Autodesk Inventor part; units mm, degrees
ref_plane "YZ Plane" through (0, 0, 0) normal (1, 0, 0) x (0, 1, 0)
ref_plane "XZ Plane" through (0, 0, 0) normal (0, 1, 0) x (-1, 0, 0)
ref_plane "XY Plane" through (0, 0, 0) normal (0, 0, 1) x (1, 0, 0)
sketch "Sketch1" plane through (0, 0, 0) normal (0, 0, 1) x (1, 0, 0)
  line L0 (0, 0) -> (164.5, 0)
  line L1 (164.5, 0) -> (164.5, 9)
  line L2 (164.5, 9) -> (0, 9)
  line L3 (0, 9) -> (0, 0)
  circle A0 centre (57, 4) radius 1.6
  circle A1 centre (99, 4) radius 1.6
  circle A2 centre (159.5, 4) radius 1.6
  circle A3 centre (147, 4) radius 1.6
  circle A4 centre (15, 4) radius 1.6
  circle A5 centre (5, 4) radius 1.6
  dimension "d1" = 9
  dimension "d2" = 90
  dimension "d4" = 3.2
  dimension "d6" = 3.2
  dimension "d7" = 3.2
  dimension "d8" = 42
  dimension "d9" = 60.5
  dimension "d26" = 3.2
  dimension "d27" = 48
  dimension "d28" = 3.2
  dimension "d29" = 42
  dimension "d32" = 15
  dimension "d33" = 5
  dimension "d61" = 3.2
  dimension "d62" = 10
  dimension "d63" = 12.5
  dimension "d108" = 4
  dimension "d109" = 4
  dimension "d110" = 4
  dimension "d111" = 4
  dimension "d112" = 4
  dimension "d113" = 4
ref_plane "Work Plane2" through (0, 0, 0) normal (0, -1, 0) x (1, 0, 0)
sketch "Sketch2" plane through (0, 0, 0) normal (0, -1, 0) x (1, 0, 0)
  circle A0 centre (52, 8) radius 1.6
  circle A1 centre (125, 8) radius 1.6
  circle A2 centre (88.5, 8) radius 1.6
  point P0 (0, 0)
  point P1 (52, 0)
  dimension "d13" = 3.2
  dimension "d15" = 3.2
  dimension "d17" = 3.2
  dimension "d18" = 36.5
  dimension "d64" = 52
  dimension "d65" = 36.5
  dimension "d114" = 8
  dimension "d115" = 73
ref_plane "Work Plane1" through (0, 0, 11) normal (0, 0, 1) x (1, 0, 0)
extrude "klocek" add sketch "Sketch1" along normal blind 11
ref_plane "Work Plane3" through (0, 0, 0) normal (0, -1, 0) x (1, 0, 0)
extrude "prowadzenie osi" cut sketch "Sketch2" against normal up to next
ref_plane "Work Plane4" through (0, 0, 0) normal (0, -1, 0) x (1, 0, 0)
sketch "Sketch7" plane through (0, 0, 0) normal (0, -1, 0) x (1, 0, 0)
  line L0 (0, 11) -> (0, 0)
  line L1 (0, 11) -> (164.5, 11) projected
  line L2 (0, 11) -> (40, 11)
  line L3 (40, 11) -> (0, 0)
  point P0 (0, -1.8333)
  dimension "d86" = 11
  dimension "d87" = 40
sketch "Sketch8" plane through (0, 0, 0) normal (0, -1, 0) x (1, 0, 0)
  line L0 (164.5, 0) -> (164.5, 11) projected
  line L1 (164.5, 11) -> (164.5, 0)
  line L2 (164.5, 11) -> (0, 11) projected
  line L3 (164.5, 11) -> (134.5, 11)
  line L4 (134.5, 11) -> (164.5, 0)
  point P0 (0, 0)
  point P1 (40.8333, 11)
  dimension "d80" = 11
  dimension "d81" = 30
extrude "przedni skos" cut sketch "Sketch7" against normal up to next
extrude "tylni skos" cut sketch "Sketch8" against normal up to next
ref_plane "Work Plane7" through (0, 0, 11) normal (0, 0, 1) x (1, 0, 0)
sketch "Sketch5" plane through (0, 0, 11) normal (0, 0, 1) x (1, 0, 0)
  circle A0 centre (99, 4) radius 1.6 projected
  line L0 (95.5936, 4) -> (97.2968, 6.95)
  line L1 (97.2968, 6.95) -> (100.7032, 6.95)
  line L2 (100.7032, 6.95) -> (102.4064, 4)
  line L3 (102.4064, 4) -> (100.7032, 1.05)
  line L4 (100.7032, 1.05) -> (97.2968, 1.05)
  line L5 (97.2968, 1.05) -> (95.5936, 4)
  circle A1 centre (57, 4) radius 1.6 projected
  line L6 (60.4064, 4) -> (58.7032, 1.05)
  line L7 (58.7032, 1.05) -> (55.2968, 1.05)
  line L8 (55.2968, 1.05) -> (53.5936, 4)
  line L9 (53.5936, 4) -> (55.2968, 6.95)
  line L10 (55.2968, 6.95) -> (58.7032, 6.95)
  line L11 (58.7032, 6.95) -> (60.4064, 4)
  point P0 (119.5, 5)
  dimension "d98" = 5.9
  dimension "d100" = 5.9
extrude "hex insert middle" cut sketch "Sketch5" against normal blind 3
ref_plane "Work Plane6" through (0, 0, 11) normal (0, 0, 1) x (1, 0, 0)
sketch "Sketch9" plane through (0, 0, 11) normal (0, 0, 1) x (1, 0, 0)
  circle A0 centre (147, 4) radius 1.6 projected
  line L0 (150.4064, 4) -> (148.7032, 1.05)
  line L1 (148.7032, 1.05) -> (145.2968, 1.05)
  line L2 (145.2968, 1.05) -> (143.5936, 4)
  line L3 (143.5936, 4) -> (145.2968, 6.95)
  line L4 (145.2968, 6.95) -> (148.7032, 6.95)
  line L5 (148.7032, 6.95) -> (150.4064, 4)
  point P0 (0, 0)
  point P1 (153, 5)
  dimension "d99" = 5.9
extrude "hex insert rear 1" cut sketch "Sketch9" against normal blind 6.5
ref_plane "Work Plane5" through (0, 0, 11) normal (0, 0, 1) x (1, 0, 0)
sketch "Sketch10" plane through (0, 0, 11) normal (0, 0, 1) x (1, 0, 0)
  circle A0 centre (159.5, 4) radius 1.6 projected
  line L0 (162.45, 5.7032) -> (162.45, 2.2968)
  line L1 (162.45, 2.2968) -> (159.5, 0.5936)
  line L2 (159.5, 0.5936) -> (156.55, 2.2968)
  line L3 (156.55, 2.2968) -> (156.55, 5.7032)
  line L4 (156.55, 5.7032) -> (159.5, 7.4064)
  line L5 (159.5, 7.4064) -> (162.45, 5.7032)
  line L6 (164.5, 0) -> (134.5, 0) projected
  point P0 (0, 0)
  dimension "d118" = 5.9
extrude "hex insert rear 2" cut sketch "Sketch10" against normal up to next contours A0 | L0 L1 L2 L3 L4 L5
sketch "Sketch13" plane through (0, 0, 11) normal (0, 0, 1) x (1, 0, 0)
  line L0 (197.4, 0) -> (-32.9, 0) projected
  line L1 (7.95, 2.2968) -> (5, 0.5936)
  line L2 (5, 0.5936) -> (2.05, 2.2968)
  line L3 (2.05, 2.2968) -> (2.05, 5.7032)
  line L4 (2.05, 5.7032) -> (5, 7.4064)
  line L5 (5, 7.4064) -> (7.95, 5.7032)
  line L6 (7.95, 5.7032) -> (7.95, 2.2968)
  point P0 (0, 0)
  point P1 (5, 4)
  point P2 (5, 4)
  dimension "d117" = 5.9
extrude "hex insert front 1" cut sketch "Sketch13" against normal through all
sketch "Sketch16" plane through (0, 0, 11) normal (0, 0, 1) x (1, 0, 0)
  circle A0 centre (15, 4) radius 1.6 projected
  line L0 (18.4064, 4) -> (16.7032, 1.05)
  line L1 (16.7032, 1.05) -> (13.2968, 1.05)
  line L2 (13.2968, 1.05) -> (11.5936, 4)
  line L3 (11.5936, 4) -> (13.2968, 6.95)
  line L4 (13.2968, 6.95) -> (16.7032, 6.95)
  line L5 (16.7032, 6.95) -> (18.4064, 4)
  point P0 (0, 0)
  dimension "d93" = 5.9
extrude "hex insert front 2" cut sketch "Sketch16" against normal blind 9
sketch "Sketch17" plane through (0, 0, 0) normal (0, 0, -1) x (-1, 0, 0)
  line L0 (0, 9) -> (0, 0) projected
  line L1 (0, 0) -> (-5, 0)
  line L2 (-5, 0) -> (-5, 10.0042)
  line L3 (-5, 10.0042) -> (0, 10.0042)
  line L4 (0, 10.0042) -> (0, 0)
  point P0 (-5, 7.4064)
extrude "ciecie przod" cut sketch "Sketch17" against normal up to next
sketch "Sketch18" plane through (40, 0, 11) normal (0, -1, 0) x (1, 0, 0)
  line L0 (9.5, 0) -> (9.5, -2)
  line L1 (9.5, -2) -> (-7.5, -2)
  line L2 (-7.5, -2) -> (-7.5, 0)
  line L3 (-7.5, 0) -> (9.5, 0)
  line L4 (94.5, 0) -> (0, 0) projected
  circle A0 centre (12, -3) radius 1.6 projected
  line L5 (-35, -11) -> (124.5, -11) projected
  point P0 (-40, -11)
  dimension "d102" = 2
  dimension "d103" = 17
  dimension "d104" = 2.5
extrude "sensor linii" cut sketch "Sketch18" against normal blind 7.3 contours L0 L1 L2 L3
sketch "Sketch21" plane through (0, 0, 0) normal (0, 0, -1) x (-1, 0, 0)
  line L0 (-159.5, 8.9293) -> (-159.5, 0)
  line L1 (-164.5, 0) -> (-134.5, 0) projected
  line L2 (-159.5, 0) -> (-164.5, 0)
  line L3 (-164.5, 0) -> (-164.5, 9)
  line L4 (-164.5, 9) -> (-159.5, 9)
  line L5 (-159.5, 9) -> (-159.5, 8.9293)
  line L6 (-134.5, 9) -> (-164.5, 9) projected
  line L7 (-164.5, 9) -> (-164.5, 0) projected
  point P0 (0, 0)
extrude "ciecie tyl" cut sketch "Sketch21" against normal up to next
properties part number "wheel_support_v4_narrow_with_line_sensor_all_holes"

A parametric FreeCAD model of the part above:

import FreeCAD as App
import Part
import Sketcher

V = App.Vector
Q = App.Units.Quantity

doc = App.newDocument("Part")
body = doc.addObject("PartDesign::Body", "Body")

sketch1 = body.newObject("Sketcher::SketchObject", "Sketch")
sketch1.AttachmentSupport = (doc.getObject("XY_Plane"), [""])
sketch1.MapMode = "FlatFace"
sketch1.addGeometry([
    Part.LineSegment(V(0, 9, 0), V(0, 0, 0)),
    Part.LineSegment(V(0, 0, 0), V(164.5, 0, 0)),
    Part.LineSegment(V(164.5, 0, 0), V(164.5, 9, 0)),
    Part.LineSegment(V(164.5, 9, 0), V(0, 9, 0)),
    Part.Circle(V(5, 4, 0), V(0, 0, 1), 1.6),
    Part.Circle(V(15, 4, 0), V(0, 0, 1), 1.6),
    Part.Circle(V(57, 4, 0), V(0, 0, 1), 1.6),
    Part.Circle(V(99, 4, 0), V(0, 0, 1), 1.6),
    Part.Circle(V(147, 4, 0), V(0, 0, 1), 1.6),
    Part.Circle(V(159.5, 4, 0), V(0, 0, 1), 1.6),
], False)
sketch1.addConstraint([
    Sketcher.Constraint("Coincident", 0, 2, 1, 1),
    Sketcher.Constraint("Coincident", 1, 2, 2, 1),
    Sketcher.Constraint("Coincident", 2, 2, 3, 1),
    Sketcher.Constraint("Coincident", 3, 2, 0, 1),
    Sketcher.Constraint("Vertical", 0),
    Sketcher.Constraint("Horizontal", 1),
    Sketcher.Constraint("Vertical", 2),
    Sketcher.Constraint("Horizontal", 3),
    Sketcher.Constraint("Coincident", 0, 2, -1, 1),
    Sketcher.Constraint("Equal", 4, 5),
    Sketcher.Constraint("Equal", 5, 6),
    Sketcher.Constraint("Equal", 6, 7),
    Sketcher.Constraint("Equal", 7, 8),
    Sketcher.Constraint("Equal", 8, 9),
    Sketcher.Constraint("Horizontal", 4, 3, 5, 3),
    Sketcher.Constraint("Horizontal", 5, 3, 6, 3),
    Sketcher.Constraint("Horizontal", 6, 3, 7, 3),
    Sketcher.Constraint("Horizontal", 7, 3, 8, 3),
    Sketcher.Constraint("Horizontal", 8, 3, 9, 3),
    Sketcher.Constraint("Diameter", 4, 3.2),
    Sketcher.Constraint("DistanceY", 0, 2, 0, 1, 9.0),
    Sketcher.Constraint("DistanceX", -1, 1, 4, 3, 5.0),
    Sketcher.Constraint("DistanceY", -1, 1, 4, 3, 4.0),
    Sketcher.Constraint("DistanceX", -1, 1, 5, 3, 15.0),
    Sketcher.Constraint("DistanceX", 5, 3, 6, 3, 42.0),
    Sketcher.Constraint("DistanceX", 6, 3, 7, 3, 42.0),
    Sketcher.Constraint("DistanceX", 7, 3, 8, 3, 48.0),
    Sketcher.Constraint("DistanceX", 9, 3, 1, 2, 5.0),
    Sketcher.Constraint("DistanceX", 8, 3, 9, 3, 12.5),
])
pad1 = body.newObject("PartDesign::Pad", "Pad")
pad1.Profile = sketch1
pad1.Length = 11

sketch2 = body.newObject("Sketcher::SketchObject", "Sketch001")
sketch2.AttachmentSupport = (doc.getObject("XZ_Plane"), [""])
sketch2.MapMode = "FlatFace"
sketch2.addGeometry([
    Part.Circle(V(52, 8, 0), V(0, 0, 1), 1.6),
    Part.Circle(V(125, 8, 0), V(0, 0, 1), 1.6),
    Part.Circle(V(88.5, 8, 0), V(0, 0, 1), 1.6),
], False)
sketch2.addConstraint([
    Sketcher.Constraint("Equal", 0, 1),
    Sketcher.Constraint("Equal", 1, 2),
    Sketcher.Constraint("Horizontal", 0, 3, 1, 3),
    Sketcher.Constraint("Horizontal", 1, 3, 2, 3),
    Sketcher.Constraint("Diameter", 0, 3.2),
    Sketcher.Constraint("DistanceX", -1, 1, 0, 3, 52.0),
    Sketcher.Constraint("DistanceY", -1, 1, 0, 3, 8.0),
    Sketcher.Constraint("DistanceX", 0, 3, 1, 3, 73.0),
    Sketcher.Constraint("DistanceX", 0, 3, 2, 3, 36.5),
])
pocket1 = body.newObject("PartDesign::Pocket", "Pocket")
pocket1.Profile = sketch2
pocket1.Type = "UpToFirst"

sketch3 = body.newObject("Sketcher::SketchObject", "Sketch002")
sketch3.AttachmentSupport = (doc.getObject("XZ_Plane"), [""])
sketch3.MapMode = "FlatFace"
sketch3.addGeometry([
    Part.LineSegment(V(40, 11, 0), V(0, 11, 0)),
    Part.LineSegment(V(0, 11, 0), V(0, 0, 0)),
    Part.LineSegment(V(0, 0, 0), V(40, 11, 0)),
], False)
sketch3.addConstraint([
    Sketcher.Constraint("Coincident", 0, 2, 1, 1),
    Sketcher.Constraint("Coincident", 1, 2, 2, 1),
    Sketcher.Constraint("Coincident", 2, 2, 0, 1),
    Sketcher.Constraint("Horizontal", 0),
    Sketcher.Constraint("Vertical", 1),
    Sketcher.Constraint("Coincident", 1, 2, -1, 1),
    Sketcher.Constraint("DistanceX", 0, 2, 0, 1, 40.0),
    Sketcher.Constraint("DistanceY", 1, 2, 1, 1, 11.0),
])
pocket2 = body.newObject("PartDesign::Pocket", "Pocket001")
pocket2.Profile = sketch3
pocket2.Type = "UpToFirst"

sketch4 = body.newObject("Sketcher::SketchObject", "Sketch003")
sketch4.AttachmentSupport = (doc.getObject("XZ_Plane"), [""])
sketch4.MapMode = "FlatFace"
sketch4.addGeometry([
    Part.LineSegment(V(134, 11, 0), V(164, 0, 0)),
    Part.LineSegment(V(164, 0, 0), V(164, 11, 0)),
    Part.LineSegment(V(164, 11, 0), V(134, 11, 0)),
], False)
sketch4.addConstraint([
    Sketcher.Constraint("Coincident", 0, 2, 1, 1),
    Sketcher.Constraint("Coincident", 1, 2, 2, 1),
    Sketcher.Constraint("Coincident", 2, 2, 0, 1),
    Sketcher.Constraint("Vertical", 1),
    Sketcher.Constraint("Horizontal", 2),
    Sketcher.Constraint("PointOnObject", 0, 2, -1),
    Sketcher.Constraint("DistanceX", 2, 2, 2, 1, 30.0),
    Sketcher.Constraint("DistanceY", 1, 1, 1, 2, 11.0),
    Sketcher.Constraint("DistanceX", -1, 1, 0, 2, 164.5),
])
pocket3 = body.newObject("PartDesign::Pocket", "Pocket002")
pocket3.Profile = sketch4
pocket3.Type = "UpToFirst"

sketch5 = body.newObject("Sketcher::SketchObject", "Sketch004")
sketch5.AttachmentSupport = (doc.getObject("XY_Plane"), [""])
sketch5.MapMode = "FlatFace"
sketch5.AttachmentOffset = App.Placement(V(0, 0, 11), App.Rotation())
sketch5.addGeometry([
    Part.LineSegment(V(97.3, 7, 0), V(95.6, 4, 0)),
    Part.LineSegment(V(95.6, 4, 0), V(97.3, 1.1, 0)),
    Part.LineSegment(V(97.3, 1.1, 0), V(100.7, 1.1, 0)),
    Part.LineSegment(V(100.7, 1.1, 0), V(102.4, 4, 0)),
    Part.LineSegment(V(102.4, 4, 0), V(100.7, 7, 0)),
    Part.LineSegment(V(100.7, 7, 0), V(97.3, 7, 0)),
    Part.Circle(V(99, 4, 0), V(0, 0, 1), 1.6),
    Part.LineSegment(V(58.7, 1.1, 0), V(60.4, 4, 0)),
    Part.LineSegment(V(60.4, 4, 0), V(58.7, 7, 0)),
    Part.LineSegment(V(58.7, 7, 0), V(55.3, 7, 0)),
    Part.LineSegment(V(55.3, 7, 0), V(53.6, 4, 0)),
    Part.LineSegment(V(53.6, 4, 0), V(55.3, 1.1, 0)),
    Part.LineSegment(V(55.3, 1.1, 0), V(58.7, 1.1, 0)),
    Part.Circle(V(57, 4, 0), V(0, 0, 1), 1.6),
], False)
sketch5.addConstraint([
    Sketcher.Constraint("Coincident", 0, 2, 1, 1),
    Sketcher.Constraint("Coincident", 1, 2, 2, 1),
    Sketcher.Constraint("Coincident", 2, 2, 3, 1),
    Sketcher.Constraint("Coincident", 3, 2, 4, 1),
    Sketcher.Constraint("Coincident", 4, 2, 5, 1),
    Sketcher.Constraint("Coincident", 5, 2, 0, 1),
    Sketcher.Constraint("Coincident", 7, 2, 8, 1),
    Sketcher.Constraint("Coincident", 8, 2, 9, 1),
    Sketcher.Constraint("Coincident", 9, 2, 10, 1),
    Sketcher.Constraint("Coincident", 10, 2, 11, 1),
    Sketcher.Constraint("Coincident", 11, 2, 12, 1),
    Sketcher.Constraint("Coincident", 12, 2, 7, 1),
    Sketcher.Constraint("Horizontal", 2),
    Sketcher.Constraint("Horizontal", 5),
    Sketcher.Constraint("Horizontal", 9),
    Sketcher.Constraint("Horizontal", 12),
    Sketcher.Constraint("Equal", 6, 13),
    Sketcher.Constraint("Parallel", 0, 3),
    Sketcher.Constraint("Parallel", 1, 4),
    Sketcher.Constraint("Parallel", 3, 7),
    Sketcher.Constraint("Parallel", 4, 8),
    Sketcher.Constraint("Parallel", 7, 10),
    Sketcher.Constraint("Parallel", 8, 11),
    Sketcher.Constraint("Horizontal", 6, 3, 13, 3),
    Sketcher.Constraint("Horizontal", 13, 3, 0, 2),
    Sketcher.Constraint("Horizontal", 0, 2, 3, 2),
    Sketcher.Constraint("Horizontal", 3, 2, 7, 2),
    Sketcher.Constraint("Horizontal", 5, 2, 8, 2),
    Sketcher.Constraint("Horizontal", 7, 2, 10, 2),
    Sketcher.Constraint("Horizontal", 2, 2, 11, 2),
    Sketcher.Constraint("Vertical", 2, 2, 4, 2),
    Sketcher.Constraint("Vertical", 1, 2, 5, 2),
    Sketcher.Constraint("Equal", 5, 9),
    Sketcher.Constraint("Diameter", 6, 3.2),
    Sketcher.Constraint("DistanceY", 2, 2, 4, 2, 5.9),
    Sketcher.Constraint("Angle", 0, Q("-120.0002 deg")),
    Sketcher.Constraint("DistanceX", -1, 1, 6, 3, 99.0),
    Sketcher.Constraint("DistanceY", -1, 1, 6, 3, 4.0),
    Sketcher.Constraint("DistanceX", -1, 1, 13, 3, 57.0),
    Sketcher.Constraint("DistanceX", 9, 2, 5, 2, 42.0),
    Sketcher.Constraint("DistanceX", 2, 1, 2, 2, 3.4064),
    Sketcher.Constraint("DistanceX", -1, 1, 0, 2, 95.5936),
])
pocket4 = body.newObject("PartDesign::Pocket", "Pocket003")
pocket4.Profile = sketch5
pocket4.Length = 3

sketch6 = body.newObject("Sketcher::SketchObject", "Sketch005")
sketch6.AttachmentSupport = (doc.getObject("XY_Plane"), [""])
sketch6.MapMode = "FlatFace"
sketch6.AttachmentOffset = App.Placement(V(0, 0, 11), App.Rotation())
sketch6.addGeometry([
    Part.LineSegment(V(148.7, 1.1, 0), V(150.4, 4, 0)),
    Part.LineSegment(V(150.4, 4, 0), V(148.7, 7, 0)),
    Part.LineSegment(V(148.7, 7, 0), V(145.3, 7, 0)),
    Part.LineSegment(V(145.3, 7, 0), V(143.6, 4, 0)),
    Part.LineSegment(V(143.6, 4, 0), V(145.3, 1.1, 0)),
    Part.LineSegment(V(145.3, 1.1, 0), V(148.7, 1.1, 0)),
    Part.Circle(V(147, 4, 0), V(0, 0, 1), 1.6),
], False)
sketch6.addConstraint([
    Sketcher.Constraint("Coincident", 0, 2, 1, 1),
    Sketcher.Constraint("Coincident", 1, 2, 2, 1),
    Sketcher.Constraint("Coincident", 2, 2, 3, 1),
    Sketcher.Constraint("Coincident", 3, 2, 4, 1),
    Sketcher.Constraint("Coincident", 4, 2, 5, 1),
    Sketcher.Constraint("Coincident", 5, 2, 0, 1),
    Sketcher.Constraint("Horizontal", 2),
    Sketcher.Constraint("Horizontal", 5),
    Sketcher.Constraint("Parallel", 0, 3),
    Sketcher.Constraint("Parallel", 1, 4),
    Sketcher.Constraint("Horizontal", 6, 3, 0, 2),
    Sketcher.Constraint("Horizontal", 0, 2, 3, 2),
    Sketcher.Constraint("Vertical", 2, 2, 4, 2),
    Sketcher.Constraint("Vertical", 1, 2, 5, 2),
    Sketcher.Constraint("Diameter", 6, 3.2),
    Sketcher.Constraint("DistanceY", 4, 2, 2, 2, 5.9),
    Sketcher.Constraint("Angle", 0, Q("59.9998 deg")),
    Sketcher.Constraint("DistanceX", -1, 1, 6, 3, 147.0),
    Sketcher.Constraint("DistanceY", -1, 1, 6, 3, 4.0),
    Sketcher.Constraint("DistanceX", 2, 2, 2, 1, 3.4064),
    Sketcher.Constraint("DistanceX", -1, 1, 0, 2, 150.4064),
])
pocket5 = body.newObject("PartDesign::Pocket", "Pocket004")
pocket5.Profile = sketch6
pocket5.Length = 6.5

sketch7 = body.newObject("Sketcher::SketchObject", "Sketch006")
sketch7.AttachmentSupport = (doc.getObject("XY_Plane"), [""])
sketch7.MapMode = "FlatFace"
sketch7.AttachmentOffset = App.Placement(V(0, 0, 11), App.Rotation())
sketch7.addGeometry([
    Part.LineSegment(V(162.4, 2.3, 0), V(162.4, 5.7, 0)),
    Part.LineSegment(V(162.4, 5.7, 0), V(159.5, 7.4, 0)),
    Part.LineSegment(V(159.5, 7.4, 0), V(156.6, 5.7, 0)),
    Part.LineSegment(V(156.6, 5.7, 0), V(156.6, 2.3, 0)),
    Part.LineSegment(V(156.6, 2.3, 0), V(159.5, 0.6, 0)),
    Part.LineSegment(V(159.5, 0.6, 0), V(162.4, 2.3, 0)),
], False)
sketch7.addConstraint([
    Sketcher.Constraint("Coincident", 0, 2, 1, 1),
    Sketcher.Constraint("Coincident", 1, 2, 2, 1),
    Sketcher.Constraint("Coincident", 2, 2, 3, 1),
    Sketcher.Constraint("Coincident", 3, 2, 4, 1),
    Sketcher.Constraint("Coincident", 4, 2, 5, 1),
    Sketcher.Constraint("Coincident", 5, 2, 0, 1),
    Sketcher.Constraint("Vertical", 0),
    Sketcher.Constraint("Vertical", 3),
    Sketcher.Constraint("Parallel", 1, 4),
    Sketcher.Constraint("Parallel", 2, 5),
    Sketcher.Constraint("Horizontal", 0, 2, 2, 2),
    Sketcher.Constraint("Horizontal", 3, 2, 5, 2),
    Sketcher.Constraint("Vertical", 1, 2, 4, 2),
    Sketcher.Constraint("DistanceX", 2, 2, 0, 2, 5.9),
    Sketcher.Constraint("Angle", 1, Q("149.9998 deg")),
    Sketcher.Constraint("DistanceX", -1, 1, 1, 2, 159.5),
    Sketcher.Constraint("DistanceY", 0, 1, 0, 2, 3.4064),
    Sketcher.Constraint("DistanceY", -1, 1, 0, 2, 5.7032),
])
pocket6 = body.newObject("PartDesign::Pocket", "Pocket005")
pocket6.Profile = sketch7
pocket6.Length = 11

sketch8 = body.newObject("Sketcher::SketchObject", "Sketch007")
sketch8.AttachmentSupport = (doc.getObject("XY_Plane"), [""])
sketch8.MapMode = "FlatFace"
sketch8.AttachmentOffset = App.Placement(V(0, 0, 11), App.Rotation())
sketch8.addGeometry([
    Part.LineSegment(V(5, 0.6, 0), V(8, 2.3, 0)),
    Part.LineSegment(V(8, 2.3, 0), V(8, 5.7, 0)),
    Part.LineSegment(V(8, 5.7, 0), V(5, 7.4, 0)),
    Part.LineSegment(V(5, 7.4, 0), V(2, 5.7, 0)),
    Part.LineSegment(V(2, 5.7, 0), V(2, 2.3, 0)),
    Part.LineSegment(V(2, 2.3, 0), V(5, 0.6, 0)),
], False)
sketch8.addConstraint([
    Sketcher.Constraint("Coincident", 0, 2, 1, 1),
    Sketcher.Constraint("Coincident", 1, 2, 2, 1),
    Sketcher.Constraint("Coincident", 2, 2, 3, 1),
    Sketcher.Constraint("Coincident", 3, 2, 4, 1),
    Sketcher.Constraint("Coincident", 4, 2, 5, 1),
    Sketcher.Constraint("Coincident", 5, 2, 0, 1),
    Sketcher.Constraint("Vertical", 1),
    Sketcher.Constraint("Vertical", 4),
    Sketcher.Constraint("Parallel", 0, 3),
    Sketcher.Constraint("Parallel", 2, 5),
    Sketcher.Constraint("Horizontal", 1, 2, 3, 2),
    Sketcher.Constraint("Horizontal", 0, 2, 4, 2),
    Sketcher.Constraint("Vertical", 2, 2, 5, 2),
    Sketcher.Constraint("DistanceX", 3, 2, 1, 2, 5.9),
    Sketcher.Constraint("Angle", 0, Q("30.0002 deg")),
    Sketcher.Constraint("DistanceX", -1, 1, 2, 2, 5.0),
    Sketcher.Constraint("DistanceY", 1, 1, 1, 2, 3.4064),
    Sketcher.Constraint("DistanceY", -1, 1, 0, 2, 2.2968),
])
pocket7 = body.newObject("PartDesign::Pocket", "Pocket006")
pocket7.Profile = sketch8
pocket7.Type = "ThroughAll"

sketch9 = body.newObject("Sketcher::SketchObject", "Sketch008")
sketch9.AttachmentSupport = (doc.getObject("XY_Plane"), [""])
sketch9.MapMode = "FlatFace"
sketch9.AttachmentOffset = App.Placement(V(0, 0, 11), App.Rotation())
sketch9.addGeometry([
    Part.LineSegment(V(16.7, 1.1, 0), V(18.4, 4, 0)),
    Part.LineSegment(V(18.4, 4, 0), V(16.7, 7, 0)),
    Part.LineSegment(V(16.7, 7, 0), V(13.3, 7, 0)),
    Part.LineSegment(V(13.3, 7, 0), V(11.6, 4, 0)),
    Part.LineSegment(V(11.6, 4, 0), V(13.3, 1.1, 0)),
    Part.LineSegment(V(13.3, 1.1, 0), V(16.7, 1.1, 0)),
    Part.Circle(V(15, 4, 0), V(0, 0, 1), 1.6),
], False)
sketch9.addConstraint([
    Sketcher.Constraint("Coincident", 0, 2, 1, 1),
    Sketcher.Constraint("Coincident", 1, 2, 2, 1),
    Sketcher.Constraint("Coincident", 2, 2, 3, 1),
    Sketcher.Constraint("Coincident", 3, 2, 4, 1),
    Sketcher.Constraint("Coincident", 4, 2, 5, 1),
    Sketcher.Constraint("Coincident", 5, 2, 0, 1),
    Sketcher.Constraint("Horizontal", 2),
    Sketcher.Constraint("Horizontal", 5),
    Sketcher.Constraint("Parallel", 0, 3),
    Sketcher.Constraint("Parallel", 1, 4),
    Sketcher.Constraint("Horizontal", 6, 3, 0, 2),
    Sketcher.Constraint("Horizontal", 0, 2, 3, 2),
    Sketcher.Constraint("Vertical", 2, 2, 4, 2),
    Sketcher.Constraint("Vertical", 1, 2, 5, 2),
    Sketcher.Constraint("Diameter", 6, 3.2),
    Sketcher.Constraint("DistanceY", 4, 2, 2, 2, 5.9),
    Sketcher.Constraint("Angle", 0, Q("59.9998 deg")),
    Sketcher.Constraint("DistanceX", -1, 1, 6, 3, 15.0),
    Sketcher.Constraint("DistanceY", -1, 1, 6, 3, 4.0),
    Sketcher.Constraint("DistanceX", 2, 2, 2, 1, 3.4064),
    Sketcher.Constraint("DistanceX", -1, 1, 0, 2, 18.4064),
])
pocket8 = body.newObject("PartDesign::Pocket", "Pocket007")
pocket8.Profile = sketch9
pocket8.Length = 9

sketch10 = body.newObject("Sketcher::SketchObject", "Sketch009")
sketch10.AttachmentSupport = (doc.getObject("XY_Plane"), [""])
sketch10.MapMode = "FlatFace"
sketch10.addGeometry([
    Part.LineSegment(V(0, 0, 0), V(0, 10, 0)),
    Part.LineSegment(V(0, 10, 0), V(5, 10, 0)),
    Part.LineSegment(V(5, 10, 0), V(5, 0, 0)),
    Part.LineSegment(V(5, 0, 0), V(0, 0, 0)),
], False)
sketch10.addConstraint([
    Sketcher.Constraint("Coincident", 0, 2, 1, 1),
    Sketcher.Constraint("Coincident", 1, 2, 2, 1),
    Sketcher.Constraint("Coincident", 2, 2, 3, 1),
    Sketcher.Constraint("Coincident", 3, 2, 0, 1),
    Sketcher.Constraint("Vertical", 0),
    Sketcher.Constraint("Horizontal", 1),
    Sketcher.Constraint("Vertical", 2),
    Sketcher.Constraint("Horizontal", 3),
    Sketcher.Constraint("Coincident", 3, 2, -1, 1),
    Sketcher.Constraint("DistanceX", 1, 1, 1, 2, 5.0),
    Sketcher.Constraint("DistanceY", 0, 1, 0, 2, 10.0042),
])
pocket9 = body.newObject("PartDesign::Pocket", "Pocket008")
pocket9.Profile = sketch10
pocket9.Length = 1.375
pocket9.Reversed = True

sketch11 = body.newObject("Sketcher::SketchObject", "Sketch010")
sketch11.AttachmentSupport = (doc.getObject("XZ_Plane"), [""])
sketch11.MapMode = "FlatFace"
sketch11.addGeometry([
    Part.LineSegment(V(49.5, 9, 0), V(49.5, 11, 0)),
    Part.LineSegment(V(49.5, 11, 0), V(32.5, 11, 0)),
    Part.LineSegment(V(32.5, 11, 0), V(32.5, 9, 0)),
    Part.LineSegment(V(32.5, 9, 0), V(49.5, 9, 0)),
], False)
sketch11.addConstraint([
    Sketcher.Constraint("Coincident", 0, 2, 1, 1),
    Sketcher.Constraint("Coincident", 1, 2, 2, 1),
    Sketcher.Constraint("Coincident", 2, 2, 3, 1),
    Sketcher.Constraint("Coincident", 3, 2, 0, 1),
    Sketcher.Constraint("Vertical", 0),
    Sketcher.Constraint("Horizontal", 1),
    Sketcher.Constraint("Vertical", 2),
    Sketcher.Constraint("Horizontal", 3),
    Sketcher.Constraint("DistanceX", 1, 2, 1, 1, 17.0),
    Sketcher.Constraint("DistanceY", 0, 1, 0, 2, 2.0),
    Sketcher.Constraint("DistanceY", -1, 1, 0, 2, 11.0),
    Sketcher.Constraint("DistanceX", -1, 1, 0, 2, 49.5),
])
pocket10 = body.newObject("PartDesign::Pocket", "Pocket009")
pocket10.Profile = sketch11
pocket10.Length = 7.3

sketch12 = body.newObject("Sketcher::SketchObject", "Sketch011")
sketch12.AttachmentSupport = (doc.getObject("XY_Plane"), [""])
sketch12.MapMode = "FlatFace"
sketch12.addGeometry([
    Part.LineSegment(V(160, 0, 0), V(160, 9, 0)),
    Part.LineSegment(V(160, 9, 0), V(164, 9, 0)),
    Part.LineSegment(V(164, 9, 0), V(164, 0, 0)),
    Part.LineSegment(V(164, 0, 0), V(160, 0, 0)),
], False)
sketch12.addConstraint([
    Sketcher.Constraint("Coincident", 0, 2, 1, 1),
    Sketcher.Constraint("Coincident", 1, 2, 2, 1),
    Sketcher.Constraint("Coincident", 2, 2, 3, 1),
    Sketcher.Constraint("Coincident", 3, 2, 0, 1),
    Sketcher.Constraint("Vertical", 0),
    Sketcher.Constraint("Horizontal", 1),
    Sketcher.Constraint("Vertical", 2),
    Sketcher.Constraint("Horizontal", 3),
    Sketcher.Constraint("PointOnObject", 2, 2, -1),
    Sketcher.Constraint("DistanceX", 1, 1, 1, 2, 5.0),
    Sketcher.Constraint("DistanceY", 0, 1, 0, 2, 9.0),
    Sketcher.Constraint("DistanceX", -1, 1, 0, 2, 159.5),
])
pocket11 = body.newObject("PartDesign::Pocket", "Pocket010")
pocket11.Profile = sketch12
pocket11.Length = 1.8333
pocket11.Reversed = True

doc.recompute()
